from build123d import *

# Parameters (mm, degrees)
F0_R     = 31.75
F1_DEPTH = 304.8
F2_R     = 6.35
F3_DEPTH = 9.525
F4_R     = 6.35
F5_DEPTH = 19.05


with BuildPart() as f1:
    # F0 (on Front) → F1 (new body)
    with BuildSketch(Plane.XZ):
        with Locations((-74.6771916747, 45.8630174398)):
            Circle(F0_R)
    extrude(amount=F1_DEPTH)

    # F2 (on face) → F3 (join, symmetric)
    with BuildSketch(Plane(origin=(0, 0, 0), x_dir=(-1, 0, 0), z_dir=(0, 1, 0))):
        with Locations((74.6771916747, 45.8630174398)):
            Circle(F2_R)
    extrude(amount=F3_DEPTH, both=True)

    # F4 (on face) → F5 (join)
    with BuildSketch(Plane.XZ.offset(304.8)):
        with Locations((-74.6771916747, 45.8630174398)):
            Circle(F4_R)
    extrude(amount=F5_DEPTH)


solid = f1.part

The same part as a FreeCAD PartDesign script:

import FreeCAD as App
import Part
import Sketcher

V = App.Vector
Q = App.Units.Quantity

doc = App.newDocument("Part")
body = doc.addObject("PartDesign::Body", "Body")

sketch1 = doc.addObject("Sketcher::SketchObject", "Sketch")
body.addObject(sketch1)
sketch1.AttachmentSupport = (doc.XZ_Plane, [""])
sketch1.MapMode = "FlatFace"
sketch1.addGeometry(Part.Circle(V(-75, 46, 0), V(0, 0, 1), 32), False)
sketch1.addConstraint([
    Sketcher.Constraint("Diameter", 0, Q("2.5 in")),
    Sketcher.Constraint("DistanceX", 0, 3, -1, 1, 74.677192),
    Sketcher.Constraint("DistanceY", -1, 1, 0, 3, 45.863017),
])
pad1 = doc.addObject("PartDesign::Pad", "Pad")
body.addObject(pad1)
pad1.Profile = sketch1
pad1.Length = Q("12 in")

sketch2 = doc.addObject("Sketcher::SketchObject", "Sketch001")
body.addObject(sketch2)
sketch2.AttachmentSupport = (doc.XZ_Plane, [""])
sketch2.MapMode = "FlatFace"
sketch2.addGeometry(Part.Circle(V(-75, 46, 0), V(0, 0, 1), 6), False)
sketch2.addConstraint([
    Sketcher.Constraint("Diameter", 0, Q("0.5 in")),
    Sketcher.Constraint("DistanceX", 0, 3, -1, 1, 74.677192),
    Sketcher.Constraint("DistanceY", -1, 1, 0, 3, 45.863017),
])
pad2 = doc.addObject("PartDesign::Pad", "Pad001")
body.addObject(pad2)
pad2.Profile = sketch2
pad2.Length = Q("0.75 in")
pad2.Midplane = True

sketch3 = doc.addObject("Sketcher::SketchObject", "Sketch002")
body.addObject(sketch3)
sketch3.AttachmentSupport = (doc.XZ_Plane, [""])
sketch3.MapMode = "FlatFace"
sketch3.AttachmentOffset = App.Placement(V(0, 0, 12 * 25.4), App.Rotation())
sketch3.addGeometry(Part.Circle(V(-75, 46, 0), V(0, 0, 1), 6), False)
sketch3.addConstraint([
    Sketcher.Constraint("Diameter", 0, Q("0.5 in")),
    Sketcher.Constraint("DistanceX", 0, 3, -1, 1, 74.677192),
    Sketcher.Constraint("DistanceY", -1, 1, 0, 3, 45.863017),
])
pad3 = doc.addObject("PartDesign::Pad", "Pad002")
body.addObject(pad3)
pad3.Profile = sketch3
pad3.Length = Q("0.75 in")

doc.recompute()
